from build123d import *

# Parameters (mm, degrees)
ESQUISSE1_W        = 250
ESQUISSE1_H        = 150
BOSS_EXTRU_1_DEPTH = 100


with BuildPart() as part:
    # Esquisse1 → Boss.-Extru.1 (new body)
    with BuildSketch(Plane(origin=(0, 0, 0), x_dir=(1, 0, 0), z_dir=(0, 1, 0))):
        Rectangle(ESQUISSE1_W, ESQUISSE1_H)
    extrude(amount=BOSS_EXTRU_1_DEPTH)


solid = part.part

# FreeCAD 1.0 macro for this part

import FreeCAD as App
import Part
import Sketcher

V = App.Vector
Q = App.Units.Quantity


def add_polygon(sketch, points):
    """Adds a closed chain of lines whose ends are joined by coincident constraints."""
    first, n = sketch.GeometryCount, len(points)
    for a, b in zip(points, points[1:] + points[:1]):
        sketch.addGeometry(Part.LineSegment(App.Vector(*a, 0), App.Vector(*b, 0)), False)
    for i in range(n):
        sketch.addConstraint(Sketcher.Constraint("Coincident", first + i, 2, first + (i + 1) % n, 1))

doc = App.newDocument("Part")
body = doc.addObject("PartDesign::Body", "Body")

# Sketch on XZ plane
sketch1 = body.newObject("Sketcher::SketchObject", "Sketch")
sketch1.AttachmentSupport = (doc.getObject("XZ_Plane"), [""])
sketch1.MapMode = "FlatFace"
add_polygon(sketch1, [(-125, -75), (-125, 75), (125, 75), (125, -75)])  # lines 0-3
sketch1.addConstraint(Sketcher.Constraint("Vertical", 0))
sketch1.addConstraint(Sketcher.Constraint("Horizontal", 1))
sketch1.addConstraint(Sketcher.Constraint("Vertical", 2))
sketch1.addConstraint(Sketcher.Constraint("Horizontal", 3))
sketch1.addConstraint(Sketcher.Constraint("Symmetric", 0, 2, 2, 2, -1, 1))
sketch1.addConstraint(Sketcher.Constraint("DistanceX", 1, 1, 1, 2, Q("250 mm")))
sketch1.addConstraint(Sketcher.Constraint("DistanceY", 0, 1, 0, 2, Q("150 mm")))
pad1 = body.newObject("PartDesign::Pad", "Pad")
pad1.Profile = sketch1
pad1.Length = 100
pad1.Reversed = True

doc.recompute()
